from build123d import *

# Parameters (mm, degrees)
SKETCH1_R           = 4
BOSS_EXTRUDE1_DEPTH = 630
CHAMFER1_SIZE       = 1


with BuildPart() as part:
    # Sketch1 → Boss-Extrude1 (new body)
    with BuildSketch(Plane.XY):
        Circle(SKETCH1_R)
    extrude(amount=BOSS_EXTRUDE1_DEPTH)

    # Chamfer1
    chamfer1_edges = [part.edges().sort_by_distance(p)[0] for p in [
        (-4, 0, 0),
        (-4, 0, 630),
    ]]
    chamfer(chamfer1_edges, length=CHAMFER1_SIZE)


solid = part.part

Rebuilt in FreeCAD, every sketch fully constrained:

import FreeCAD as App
import Part
import Sketcher

V = App.Vector


def edges_at(feature, points):
    """Names of the edges that pass closest to the given points."""
    edges = feature.Shape.Edges
    near = lambda p: min(range(len(edges)), key=lambda i: edges[i].distToShape(Part.Vertex(*p))[0])
    return sorted({f"Edge{near(p) + 1}" for p in points})

doc = App.newDocument("Part")
body = doc.addObject("PartDesign::Body", "Body")

sketch1 = body.newObject("Sketcher::SketchObject", "Sketch")
sketch1.AttachmentSupport = (doc.getObject("XY_Plane"), [""])
sketch1.MapMode = "FlatFace"
sketch1.addGeometry(Part.Circle(V(0, 0, 0), V(0, 0, 1), 4), False)
sketch1.addConstraint(Sketcher.Constraint("Coincident", 0, 3, -1, 1))
sketch1.addConstraint(Sketcher.Constraint("Diameter", 0, 8.0))
pad1 = body.newObject("PartDesign::Pad", "Pad")
pad1.Profile = sketch1
pad1.Length = 630
doc.recompute()

chamfer = body.newObject("PartDesign::Chamfer", "Chamfer")
chamfer.Base = (pad1, edges_at(pad1, [(-4, 0, 0), (-4, 0, 630)]))
chamfer.Size = 1

doc.recompute()
